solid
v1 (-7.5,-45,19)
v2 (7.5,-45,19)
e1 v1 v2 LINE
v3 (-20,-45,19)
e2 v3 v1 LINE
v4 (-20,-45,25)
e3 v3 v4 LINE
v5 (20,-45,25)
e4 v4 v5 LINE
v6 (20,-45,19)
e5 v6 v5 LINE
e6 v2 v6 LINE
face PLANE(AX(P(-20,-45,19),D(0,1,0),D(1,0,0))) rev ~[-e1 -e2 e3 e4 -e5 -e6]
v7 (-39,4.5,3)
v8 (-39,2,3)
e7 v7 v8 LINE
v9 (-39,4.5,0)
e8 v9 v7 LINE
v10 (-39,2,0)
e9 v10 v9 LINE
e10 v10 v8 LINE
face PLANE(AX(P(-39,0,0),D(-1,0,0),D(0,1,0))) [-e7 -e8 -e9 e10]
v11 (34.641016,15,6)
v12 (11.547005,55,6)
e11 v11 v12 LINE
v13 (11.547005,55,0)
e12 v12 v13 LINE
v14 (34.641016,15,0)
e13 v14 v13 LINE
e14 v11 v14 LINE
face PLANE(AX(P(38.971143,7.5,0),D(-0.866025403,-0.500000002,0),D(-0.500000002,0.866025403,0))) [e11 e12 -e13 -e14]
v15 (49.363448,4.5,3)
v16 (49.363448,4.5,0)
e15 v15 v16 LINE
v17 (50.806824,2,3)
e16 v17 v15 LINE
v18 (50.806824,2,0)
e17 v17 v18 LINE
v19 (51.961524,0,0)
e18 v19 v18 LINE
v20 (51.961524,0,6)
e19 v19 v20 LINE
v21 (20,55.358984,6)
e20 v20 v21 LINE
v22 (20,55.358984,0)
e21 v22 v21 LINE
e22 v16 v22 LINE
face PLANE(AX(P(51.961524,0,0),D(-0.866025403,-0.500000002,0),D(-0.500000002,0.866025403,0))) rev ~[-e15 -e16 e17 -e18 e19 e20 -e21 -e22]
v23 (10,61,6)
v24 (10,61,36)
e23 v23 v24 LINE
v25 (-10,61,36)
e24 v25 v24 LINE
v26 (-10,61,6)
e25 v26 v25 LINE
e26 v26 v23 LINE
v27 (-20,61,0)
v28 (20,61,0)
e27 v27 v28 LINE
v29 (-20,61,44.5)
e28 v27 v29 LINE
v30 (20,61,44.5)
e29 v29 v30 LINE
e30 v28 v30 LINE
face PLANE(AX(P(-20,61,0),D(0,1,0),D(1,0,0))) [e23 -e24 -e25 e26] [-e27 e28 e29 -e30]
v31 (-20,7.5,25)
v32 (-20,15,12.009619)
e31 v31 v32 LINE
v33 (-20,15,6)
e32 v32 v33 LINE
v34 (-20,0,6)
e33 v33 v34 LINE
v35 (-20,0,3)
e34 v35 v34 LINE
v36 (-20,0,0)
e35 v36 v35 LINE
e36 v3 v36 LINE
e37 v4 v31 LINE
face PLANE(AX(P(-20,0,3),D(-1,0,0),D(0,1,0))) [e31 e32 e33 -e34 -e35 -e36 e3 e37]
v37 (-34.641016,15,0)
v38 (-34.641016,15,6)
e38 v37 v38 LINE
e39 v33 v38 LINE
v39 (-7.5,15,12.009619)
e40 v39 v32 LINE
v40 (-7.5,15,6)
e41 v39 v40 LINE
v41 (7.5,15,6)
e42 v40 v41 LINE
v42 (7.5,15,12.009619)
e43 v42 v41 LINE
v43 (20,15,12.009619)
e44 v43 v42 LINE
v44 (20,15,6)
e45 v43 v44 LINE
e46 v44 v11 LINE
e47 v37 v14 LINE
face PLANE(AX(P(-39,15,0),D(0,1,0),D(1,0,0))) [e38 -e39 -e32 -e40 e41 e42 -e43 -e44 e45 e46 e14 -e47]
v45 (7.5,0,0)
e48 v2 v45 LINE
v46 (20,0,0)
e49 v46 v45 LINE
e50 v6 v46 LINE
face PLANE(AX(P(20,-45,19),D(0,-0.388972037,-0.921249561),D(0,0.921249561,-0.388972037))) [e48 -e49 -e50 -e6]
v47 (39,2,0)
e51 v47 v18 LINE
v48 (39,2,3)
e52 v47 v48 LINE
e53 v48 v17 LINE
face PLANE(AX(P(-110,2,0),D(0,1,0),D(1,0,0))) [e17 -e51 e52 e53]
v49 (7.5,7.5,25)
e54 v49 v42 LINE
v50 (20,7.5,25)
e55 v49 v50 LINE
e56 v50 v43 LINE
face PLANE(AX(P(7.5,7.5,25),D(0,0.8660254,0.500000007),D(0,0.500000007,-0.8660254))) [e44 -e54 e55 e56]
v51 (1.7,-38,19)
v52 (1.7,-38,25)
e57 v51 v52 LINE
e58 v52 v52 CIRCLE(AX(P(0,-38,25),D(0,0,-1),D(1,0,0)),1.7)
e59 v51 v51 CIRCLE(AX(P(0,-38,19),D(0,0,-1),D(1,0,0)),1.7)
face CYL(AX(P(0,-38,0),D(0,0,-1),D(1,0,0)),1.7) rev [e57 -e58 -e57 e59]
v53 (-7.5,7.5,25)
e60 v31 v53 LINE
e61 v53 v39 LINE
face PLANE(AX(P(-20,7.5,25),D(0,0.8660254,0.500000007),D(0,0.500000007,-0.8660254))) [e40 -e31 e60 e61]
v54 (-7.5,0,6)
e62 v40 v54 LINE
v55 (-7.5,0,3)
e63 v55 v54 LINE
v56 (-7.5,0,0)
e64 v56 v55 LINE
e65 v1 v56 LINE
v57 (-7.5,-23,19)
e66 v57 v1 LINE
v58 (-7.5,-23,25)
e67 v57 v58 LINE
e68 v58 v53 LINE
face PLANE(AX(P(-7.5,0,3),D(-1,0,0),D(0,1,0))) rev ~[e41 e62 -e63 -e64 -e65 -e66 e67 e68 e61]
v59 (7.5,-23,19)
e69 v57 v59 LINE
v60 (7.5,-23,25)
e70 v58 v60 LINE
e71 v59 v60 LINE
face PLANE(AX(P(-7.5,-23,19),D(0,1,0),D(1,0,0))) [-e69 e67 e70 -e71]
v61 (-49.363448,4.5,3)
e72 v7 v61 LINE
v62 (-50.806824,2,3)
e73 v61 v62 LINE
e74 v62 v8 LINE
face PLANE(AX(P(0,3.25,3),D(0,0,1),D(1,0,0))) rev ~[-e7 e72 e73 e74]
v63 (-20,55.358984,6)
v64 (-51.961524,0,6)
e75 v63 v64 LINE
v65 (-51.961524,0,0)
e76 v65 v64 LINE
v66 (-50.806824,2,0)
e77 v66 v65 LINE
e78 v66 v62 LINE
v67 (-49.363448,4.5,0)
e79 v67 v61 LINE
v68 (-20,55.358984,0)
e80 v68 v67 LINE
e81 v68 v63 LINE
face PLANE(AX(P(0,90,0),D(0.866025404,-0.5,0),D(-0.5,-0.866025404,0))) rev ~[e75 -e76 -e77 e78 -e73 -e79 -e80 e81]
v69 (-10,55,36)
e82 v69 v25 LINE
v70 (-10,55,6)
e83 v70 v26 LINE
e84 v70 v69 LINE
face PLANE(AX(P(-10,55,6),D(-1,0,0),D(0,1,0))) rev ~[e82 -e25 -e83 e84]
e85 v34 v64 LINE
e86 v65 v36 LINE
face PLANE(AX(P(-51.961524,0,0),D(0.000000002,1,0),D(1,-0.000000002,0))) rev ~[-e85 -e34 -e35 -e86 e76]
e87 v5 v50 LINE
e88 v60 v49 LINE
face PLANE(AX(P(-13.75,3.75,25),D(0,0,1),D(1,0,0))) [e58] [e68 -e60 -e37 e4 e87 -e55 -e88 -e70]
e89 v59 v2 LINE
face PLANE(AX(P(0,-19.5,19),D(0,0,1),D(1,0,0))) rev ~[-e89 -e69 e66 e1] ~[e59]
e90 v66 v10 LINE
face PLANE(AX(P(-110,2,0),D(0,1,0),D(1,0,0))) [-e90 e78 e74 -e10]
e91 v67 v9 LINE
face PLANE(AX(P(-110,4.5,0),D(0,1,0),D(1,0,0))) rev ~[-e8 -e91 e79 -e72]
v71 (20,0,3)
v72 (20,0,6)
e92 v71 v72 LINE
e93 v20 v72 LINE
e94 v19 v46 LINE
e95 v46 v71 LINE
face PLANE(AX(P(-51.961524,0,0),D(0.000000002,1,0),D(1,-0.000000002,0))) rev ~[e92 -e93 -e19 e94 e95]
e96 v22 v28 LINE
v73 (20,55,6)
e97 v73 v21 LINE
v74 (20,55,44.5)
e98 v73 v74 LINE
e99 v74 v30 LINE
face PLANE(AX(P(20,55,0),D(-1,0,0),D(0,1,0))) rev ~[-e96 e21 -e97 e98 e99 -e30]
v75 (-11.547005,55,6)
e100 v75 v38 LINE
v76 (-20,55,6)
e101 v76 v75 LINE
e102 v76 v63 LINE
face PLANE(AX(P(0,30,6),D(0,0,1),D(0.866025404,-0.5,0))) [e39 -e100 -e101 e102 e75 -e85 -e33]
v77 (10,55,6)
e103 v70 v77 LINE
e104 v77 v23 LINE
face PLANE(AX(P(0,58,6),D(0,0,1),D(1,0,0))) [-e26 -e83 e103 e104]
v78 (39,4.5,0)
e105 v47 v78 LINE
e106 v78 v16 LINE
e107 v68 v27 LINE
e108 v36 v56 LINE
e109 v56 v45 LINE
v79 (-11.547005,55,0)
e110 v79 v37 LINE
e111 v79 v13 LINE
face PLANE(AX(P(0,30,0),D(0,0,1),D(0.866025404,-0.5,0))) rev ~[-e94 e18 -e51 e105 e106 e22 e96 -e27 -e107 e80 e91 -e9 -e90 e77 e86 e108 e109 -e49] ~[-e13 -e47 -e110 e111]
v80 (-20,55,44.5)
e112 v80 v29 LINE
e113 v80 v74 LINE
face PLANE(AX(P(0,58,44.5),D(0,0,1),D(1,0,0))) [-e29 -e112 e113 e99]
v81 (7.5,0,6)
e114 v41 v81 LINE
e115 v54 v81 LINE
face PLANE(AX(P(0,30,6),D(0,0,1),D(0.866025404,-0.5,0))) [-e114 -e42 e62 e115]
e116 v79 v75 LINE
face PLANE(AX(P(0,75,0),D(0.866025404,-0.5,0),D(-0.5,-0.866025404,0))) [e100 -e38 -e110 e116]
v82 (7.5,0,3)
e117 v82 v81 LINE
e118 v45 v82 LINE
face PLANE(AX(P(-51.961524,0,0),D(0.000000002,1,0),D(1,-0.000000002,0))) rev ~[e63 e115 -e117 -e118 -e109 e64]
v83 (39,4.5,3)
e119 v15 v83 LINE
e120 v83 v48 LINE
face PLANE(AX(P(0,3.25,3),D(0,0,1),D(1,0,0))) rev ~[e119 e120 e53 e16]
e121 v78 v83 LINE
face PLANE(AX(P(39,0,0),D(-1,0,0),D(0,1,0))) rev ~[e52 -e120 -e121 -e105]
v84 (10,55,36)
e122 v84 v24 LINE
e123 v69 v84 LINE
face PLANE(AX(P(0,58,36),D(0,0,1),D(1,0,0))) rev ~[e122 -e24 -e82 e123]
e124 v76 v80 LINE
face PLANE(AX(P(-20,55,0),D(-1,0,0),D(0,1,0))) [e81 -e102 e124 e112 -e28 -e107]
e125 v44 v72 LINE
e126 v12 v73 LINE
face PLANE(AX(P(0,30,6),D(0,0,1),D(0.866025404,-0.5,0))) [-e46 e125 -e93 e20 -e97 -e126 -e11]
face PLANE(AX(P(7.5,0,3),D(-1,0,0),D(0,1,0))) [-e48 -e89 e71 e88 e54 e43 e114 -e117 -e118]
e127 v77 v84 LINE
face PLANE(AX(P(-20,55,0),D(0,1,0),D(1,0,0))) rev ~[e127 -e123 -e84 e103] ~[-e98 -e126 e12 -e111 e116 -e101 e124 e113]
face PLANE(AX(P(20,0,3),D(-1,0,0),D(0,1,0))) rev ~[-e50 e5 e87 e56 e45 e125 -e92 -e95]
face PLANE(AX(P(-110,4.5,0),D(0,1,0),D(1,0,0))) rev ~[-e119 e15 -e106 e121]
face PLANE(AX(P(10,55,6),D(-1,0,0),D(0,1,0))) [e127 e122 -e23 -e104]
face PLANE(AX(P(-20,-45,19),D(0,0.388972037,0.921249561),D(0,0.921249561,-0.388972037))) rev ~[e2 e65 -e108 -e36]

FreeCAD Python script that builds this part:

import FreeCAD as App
import Part
import Sketcher

V = App.Vector
Q = App.Units.Quantity


def add_polygon(sketch, points):
    """Adds a closed chain of lines whose ends are joined by coincident constraints."""
    first, n = sketch.GeometryCount, len(points)
    for a, b in zip(points, points[1:] + points[:1]):
        sketch.addGeometry(Part.LineSegment(App.Vector(*a, 0), App.Vector(*b, 0)), False)
    for i in range(n):
        sketch.addConstraint(Sketcher.Constraint("Coincident", first + i, 2, first + (i + 1) % n, 1))

doc = App.newDocument("Part")
body = doc.addObject("PartDesign::Body", "Body")

sketch1 = doc.addObject("Sketcher::SketchObject", "Sketch")
body.addObject(sketch1)
sketch1.AttachmentSupport = (doc.XY_Plane, [""])
sketch1.MapMode = "FlatFace"
add_polygon(sketch1, [(-22, 30), (-22, 15), (24, 15), (24, 30)])
sketch1.addConstraint([
    Sketcher.Constraint("Vertical", 0),
    Sketcher.Constraint("Horizontal", 1),
    Sketcher.Constraint("Vertical", 2),
    Sketcher.Constraint("Horizontal", 3),
    Sketcher.Constraint("DistanceX", 1, 1, 1, 2, Q("46 mm")),
    Sketcher.Constraint("DistanceY", 0, 2, 0, 1, Q("15 mm")),
    Sketcher.Constraint("DistanceX", 0, 2, -1, 1, Q("22 mm")),
    Sketcher.Constraint("DistanceY", -1, 1, 0, 2, Q("15 mm")),
])
pad1 = doc.addObject("PartDesign::Pad", "Pad")
body.addObject(pad1)
pad1.Profile = sketch1
pad1.Length = 16
body2 = doc.addObject("PartDesign::Body", "Body001")

sketch2 = doc.addObject("Sketcher::SketchObject", "Sketch001")
body2.addObject(sketch2)
sketch2.AttachmentSupport = (doc.getObject("XY_Plane001"), [""])
sketch2.MapMode = "FlatFace"
add_polygon(sketch2, [(-39, 15), (-39, 0), (39, 0), (39, 15)])
sketch2.addConstraint([
    Sketcher.Constraint("Vertical", 0),
    Sketcher.Constraint("Horizontal", 1),
    Sketcher.Constraint("Vertical", 2),
    Sketcher.Constraint("Horizontal", 3),
    Sketcher.Constraint("Symmetric", 0, 2, 1, 2, -1, 1),
    Sketcher.Constraint("DistanceX", 1, 1, 1, 2, Q("78 mm")),
    Sketcher.Constraint("DistanceY", 0, 2, 0, 1, Q("15 mm")),
])
pad2 = doc.addObject("PartDesign::Pad", "Pad001")
body2.addObject(pad2)
pad2.Profile = sketch2
pad2.Length = 6
body3 = doc.addObject("PartDesign::Body", "Body002")

sketch3 = doc.addObject("Sketcher::SketchObject", "Sketch002")
body3.addObject(sketch3)
sketch3.AttachmentSupport = (doc.getObject("XY_Plane002"), [""])
sketch3.MapMode = "FlatFace"
add_polygon(sketch3, [(-110, 4.5), (-110, 2), (110, 2), (110, 4.5)])
sketch3.addConstraint([
    Sketcher.Constraint("Vertical", 0),
    Sketcher.Constraint("Horizontal", 1),
    Sketcher.Constraint("Vertical", 2),
    Sketcher.Constraint("Horizontal", 3),
    Sketcher.Constraint("DistanceX", 1, 1, 1, 2, Q("220 mm")),
    Sketcher.Constraint("DistanceY", 0, 2, 0, 1, Q("2.5 mm")),
    Sketcher.Constraint("DistanceX", 0, 2, -1, 1, Q("110 mm")),
    Sketcher.Constraint("DistanceY", -1, 1, 0, 2, Q("2 mm")),
])
pad3 = doc.addObject("PartDesign::Pad", "Pad002")
body3.addObject(pad3)
pad3.Profile = sketch3
pad3.Length = 3
body4 = doc.addObject("PartDesign::Body", "Body003")

sketch4 = doc.addObject("Sketcher::SketchObject", "Sketch003")
body4.addObject(sketch4)
sketch4.AttachmentSupport = (doc.getObject("XY_Plane003"), [""])
sketch4.MapMode = "FlatFace"
add_polygon(sketch4, [(-95, 0), (95, 0), (85, 61), (-85, 61)])
sketch4.addConstraint([
    Sketcher.Constraint("Horizontal", 0),
    Sketcher.Constraint("Horizontal", 2),
    Sketcher.Constraint("Symmetric", 0, 2, 3, 2, -1, 1),
    Sketcher.Constraint("Equal", 1, 3),
    Sketcher.Constraint("DistanceX", 0, 1, 0, 2, Q("190 mm")),
    Sketcher.Constraint("DistanceX", 2, 2, 2, 1, Q("170 mm")),
    Sketcher.Constraint("DistanceY", -1, 1, 1, 2, Q("61 mm")),
])
pad4 = doc.addObject("PartDesign::Pad", "Pad003")
body4.addObject(pad4)
pad4.Profile = sketch4
pad4.Length = 10
body5 = doc.addObject("PartDesign::Body", "Body004")

sketch5 = doc.addObject("Sketcher::SketchObject", "Sketch004")
body5.addObject(sketch5)
sketch5.AttachmentSupport = (doc.getObject("XY_Plane004"), [""])
sketch5.MapMode = "FlatFace"
add_polygon(sketch5, [(-110, 98), (-110, -15), (110, -15), (110, 98)])
sketch5.addConstraint([
    Sketcher.Constraint("Vertical", 0),
    Sketcher.Constraint("Horizontal", 1),
    Sketcher.Constraint("Vertical", 2),
    Sketcher.Constraint("Horizontal", 3),
    Sketcher.Constraint("DistanceX", 1, 1, 1, 2, Q("220 mm")),
    Sketcher.Constraint("DistanceY", 0, 2, 0, 1, Q("113 mm")),
    Sketcher.Constraint("DistanceX", 0, 2, -1, 1, Q("110 mm")),
    Sketcher.Constraint("DistanceY", 0, 2, -1, 1, Q("15 mm")),
])
pad5 = doc.addObject("PartDesign::Pad", "Pad004")
body5.addObject(pad5)
pad5.Profile = sketch5
pad5.Length = 8
doc.recompute()

boolean = doc.addObject("PartDesign::Boolean", "Boolean")
body5.addObject(boolean)
boolean.Type = "Cut"
boolean.addObjects([body4])
body6 = doc.addObject("PartDesign::Body", "Body005")

sketch6 = doc.addObject("Sketcher::SketchObject", "Sketch005")
body6.addObject(sketch6)
sketch6.AttachmentSupport = (doc.getObject("XY_Plane005"), [""])
sketch6.MapMode = "FlatFace"
add_polygon(sketch6, [(-16, 61), (-16, 55), (16, 55), (16, 61)])
sketch6.addConstraint([
    Sketcher.Constraint("Vertical", 0),
    Sketcher.Constraint("Horizontal", 1),
    Sketcher.Constraint("Vertical", 2),
    Sketcher.Constraint("Horizontal", 3),
    Sketcher.Constraint("DistanceX", 1, 1, 1, 2, Q("32 mm")),
    Sketcher.Constraint("DistanceY", 0, 2, 0, 1, Q("6 mm")),
    Sketcher.Constraint("DistanceX", 0, 2, -1, 1, Q("16 mm")),
    Sketcher.Constraint("DistanceY", -1, 1, 0, 2, Q("55 mm")),
])
pad6 = doc.addObject("PartDesign::Pad", "Pad005")
body6.addObject(pad6)
pad6.Profile = sketch6
pad6.Length = 6
body7 = doc.addObject("PartDesign::Body", "Body006")

sketch7 = doc.addObject("Sketcher::SketchObject", "Sketch006")
body7.addObject(sketch7)
sketch7.AttachmentSupport = (doc.getObject("XY_Plane006"), [""])
sketch7.MapMode = "FlatFace"
add_polygon(sketch7, [(45, 0), (-22, 39), (-22, -39)])
sketch7.addConstraint([
    Sketcher.Constraint("Vertical", 1),
    Sketcher.Constraint("PointOnObject", 2, 2, -1),
    Sketcher.Constraint("Equal", 0, 2),
    Sketcher.Constraint("Angle", 0, Q("150 deg")),
    Sketcher.Constraint("DistanceX", -1, 1, 2, 2, Q("45 mm")),
    Sketcher.Constraint("DistanceX", 0, 2, -1, 1, Q("22.5 mm")),
])
pad7 = doc.addObject("PartDesign::Pad", "Pad006")
body7.addObject(pad7)
pad7.Profile = sketch7
pad7.Length = 6
body8 = doc.addObject("PartDesign::Body", "Body007")
doc.recompute()

body7.Placement = App.Placement(V(0, 23, 0), App.Rotation(V(0, 0, -1), 30))
boolean2 = doc.addObject("PartDesign::Boolean", "Boolean001")
body8.addObject(boolean2)
boolean2.Type = "Fuse"
boolean2.addObjects([body7])
body9 = doc.addObject("PartDesign::Body", "Body008")

sketch8 = doc.addObject("Sketcher::SketchObject", "Sketch007")
body9.addObject(sketch8)
sketch8.AttachmentSupport = (doc.getObject("XY_Plane008"), [""])
sketch8.MapMode = "FlatFace"
add_polygon(sketch8, [(60, 0), (-30, 52), (-30, -52)])
sketch8.addConstraint([
    Sketcher.Constraint("Vertical", 1),
    Sketcher.Constraint("PointOnObject", 2, 2, -1),
    Sketcher.Constraint("Equal", 0, 2),
    Sketcher.Constraint("Angle", 0, Q("150 deg")),
    Sketcher.Constraint("DistanceX", 0, 2, -1, 1, Q("30 mm")),
    Sketcher.Constraint("DistanceX", -1, 1, 2, 2, Q("60 mm")),
])
pad8 = doc.addObject("PartDesign::Pad", "Pad007")
body9.addObject(pad8)
pad8.Profile = sketch8
pad8.Length = 6
body10 = doc.addObject("PartDesign::Body", "Body009")
doc.recompute()

body9.Placement = App.Placement(V(0, 23, 0), App.Rotation(V(0, 0, -1), 30))
boolean3 = doc.addObject("PartDesign::Boolean", "Boolean002")
body10.addObject(boolean3)
boolean3.Type = "Fuse"
boolean3.addObjects([body9])
doc.recompute()

boolean4 = doc.addObject("PartDesign::Boolean", "Boolean003")
body10.addObject(boolean4)
boolean4.Type = "Cut"
boolean4.addObjects([body8])
body11 = doc.addObject("PartDesign::Body", "Body010")
doc.recompute()

body10.Placement = App.Placement(V(0, 7, 0), App.Rotation(V(0, 0, 1), 0))
boolean5 = doc.addObject("PartDesign::Boolean", "Boolean004")
body11.addObject(boolean5)
boolean5.Type = "Fuse"
boolean5.addObjects([body10])
doc.recompute()

boolean6 = doc.addObject("PartDesign::Boolean", "Boolean005")
body11.addObject(boolean6)
boolean6.Type = "Fuse"
boolean6.addObjects([body6])
doc.recompute()

boolean7 = doc.addObject("PartDesign::Boolean", "Boolean006")
body11.addObject(boolean7)
boolean7.Type = "Cut"
boolean7.addObjects([body5])
doc.recompute()

boolean8 = doc.addObject("PartDesign::Boolean", "Boolean007")
body11.addObject(boolean8)
boolean8.Type = "Cut"
boolean8.addObjects([body3])
body12 = doc.addObject("PartDesign::Body", "Body011")

sketch9 = doc.addObject("Sketcher::SketchObject", "Sketch008")
body12.addObject(sketch9)
sketch9.AttachmentSupport = (doc.getObject("YZ_Plane011"), [""])
sketch9.MapMode = "FlatFace"
sketch9.AttachmentOffset = App.Placement(V(0, 0, -20), App.Rotation())
add_polygon(sketch9, [(8, 0), (8, 25), (22, 0)])
sketch9.addConstraint([
    Sketcher.Constraint("Vertical", 0),
    Sketcher.Constraint("Horizontal", 2),
    Sketcher.Constraint("PointOnObject", 1, 2, -1),
    Sketcher.Constraint("DistanceY", 0, 1, 0, 2, Q("25 mm")),
    Sketcher.Constraint("Angle", 1, Q("-60 deg")),
    Sketcher.Constraint("DistanceX", -1, 1, 0, 2, Q("7.5 mm")),
])
pad9 = doc.addObject("PartDesign::Pad", "Pad008")
body12.addObject(pad9)
pad9.Profile = sketch9
pad9.Length = 12.5
body13 = doc.addObject("PartDesign::Body", "Body012")
doc.recompute()

body12.Placement = App.Placement(V(27.5, 0, 0), App.Rotation(V(0, 0, 1), 0))
boolean9 = doc.addObject("PartDesign::Boolean", "Boolean008")
body13.addObject(boolean9)
boolean9.Type = "Fuse"
boolean9.addObjects([body12])
body14 = doc.addObject("PartDesign::Body", "Body013")

sketch10 = doc.addObject("Sketcher::SketchObject", "Sketch009")
body14.addObject(sketch10)
sketch10.AttachmentSupport = (doc.getObject("YZ_Plane013"), [""])
sketch10.MapMode = "FlatFace"
sketch10.AttachmentOffset = App.Placement(V(0, 0, -20), App.Rotation())
add_polygon(sketch10, [(0, 19), (0, 0), (-45, 19)])
sketch10.addConstraint([
    Sketcher.Constraint("Vertical", 0),
    Sketcher.Constraint("Horizontal", 2),
    Sketcher.Constraint("Coincident", 0, 2, -1, 1),
    Sketcher.Constraint("DistanceX", 2, 1, 2, 2, Q("45 mm")),
    Sketcher.Constraint("DistanceY", 0, 2, 0, 1, Q("19 mm")),
])
pad10 = doc.addObject("PartDesign::Pad", "Pad009")
body14.addObject(pad10)
pad10.Profile = sketch10
pad10.Length = 12.5
pad10.Reversed = True
body15 = doc.addObject("PartDesign::Body", "Body014")
doc.recompute()

body14.Placement = App.Placement(V(40, 0, 0), App.Rotation(V(0, 0, 1), 0))
boolean10 = doc.addObject("PartDesign::Boolean", "Boolean009")
body15.addObject(boolean10)
boolean10.Type = "Fuse"
boolean10.addObjects([body14])
body16 = doc.addObject("PartDesign::Body", "Body015")

sketch11 = doc.addObject("Sketcher::SketchObject", "Sketch010")
body16.addObject(sketch11)
sketch11.AttachmentSupport = (doc.getObject("YZ_Plane015"), [""])
sketch11.MapMode = "FlatFace"
sketch11.AttachmentOffset = App.Placement(V(0, 0, -20), App.Rotation())
add_polygon(sketch11, [(0, 19), (0, 0), (-45, 19)])
sketch11.addConstraint([
    Sketcher.Constraint("Vertical", 0),
    Sketcher.Constraint("Horizontal", 2),
    Sketcher.Constraint("Coincident", 0, 2, -1, 1),
    Sketcher.Constraint("DistanceX", 2, 1, 2, 2, Q("45 mm")),
    Sketcher.Constraint("DistanceY", 0, 2, 0, 1, Q("19 mm")),
])
pad11 = doc.addObject("PartDesign::Pad", "Pad010")
body16.addObject(pad11)
pad11.Profile = sketch11
pad11.Length = 12.5
body17 = doc.addObject("PartDesign::Body", "Body016")

sketch12 = doc.addObject("Sketcher::SketchObject", "Sketch011")
body17.addObject(sketch12)
sketch12.AttachmentSupport = (doc.getObject("XY_Plane016"), [""])
sketch12.MapMode = "FlatFace"
sketch12.AttachmentOffset = App.Placement(V(0, 0, 3), App.Rotation())
add_polygon(sketch12, [(8, 8), (8, 0), (20, 0), (20, 8)])
sketch12.addConstraint([
    Sketcher.Constraint("Vertical", 0),
    Sketcher.Constraint("Horizontal", 1),
    Sketcher.Constraint("Vertical", 2),
    Sketcher.Constraint("Horizontal", 3),
    Sketcher.Constraint("PointOnObject", 0, 2, -1),
    Sketcher.Constraint("DistanceX", 1, 1, 1, 2, Q("12.5 mm")),
    Sketcher.Constraint("DistanceY", 0, 2, 0, 1, Q("7.5 mm")),
    Sketcher.Constraint("DistanceX", -1, 1, 1, 2, Q("20 mm")),
])
pad12 = doc.addObject("PartDesign::Pad", "Pad011")
body17.addObject(pad12)
pad12.Profile = sketch12
pad12.Length = 22
body18 = doc.addObject("PartDesign::Body", "Body017")

sketch13 = doc.addObject("Sketcher::SketchObject", "Sketch012")
body18.addObject(sketch13)
sketch13.AttachmentSupport = (doc.getObject("XY_Plane017"), [""])
sketch13.MapMode = "FlatFace"
sketch13.AttachmentOffset = App.Placement(V(0, 0, 3), App.Rotation())
add_polygon(sketch13, [(-20, 8), (-20, 0), (-8, 0), (-8, 8)])
sketch13.addConstraint([
    Sketcher.Constraint("Vertical", 0),
    Sketcher.Constraint("Horizontal", 1),
    Sketcher.Constraint("Vertical", 2),
    Sketcher.Constraint("Horizontal", 3),
    Sketcher.Constraint("PointOnObject", 0, 2, -1),
    Sketcher.Constraint("DistanceX", 1, 1, 1, 2, Q("12.5 mm")),
    Sketcher.Constraint("DistanceY", 0, 2, 0, 1, Q("7.5 mm")),
    Sketcher.Constraint("DistanceX", 0, 2, -1, 1, Q("20 mm")),
])
pad13 = doc.addObject("PartDesign::Pad", "Pad012")
body18.addObject(pad13)
pad13.Profile = sketch13
pad13.Length = 22
body19 = doc.addObject("PartDesign::Body", "Body018")

sketch14 = doc.addObject("Sketcher::SketchObject", "Sketch013")
body19.addObject(sketch14)
sketch14.AttachmentSupport = (doc.getObject("XY_Plane018"), [""])
sketch14.MapMode = "FlatFace"
sketch14.addGeometry(Part.Circle(V(0, 7, 0), V(0, 0, 1), 1.7), False)
sketch14.addConstraint([
    Sketcher.Constraint("PointOnObject", 0, 3, -2),
    Sketcher.Constraint("Diameter", 0, Q("3.4 mm")),
    Sketcher.Constraint("DistanceY", -1, 1, 0, 3, Q("7 mm")),
])
pad14 = doc.addObject("PartDesign::Pad", "Pad013")
body19.addObject(pad14)
pad14.Profile = sketch14
pad14.Length = 30
body20 = doc.addObject("PartDesign::Body", "Body019")

sketch15 = doc.addObject("Sketcher::SketchObject", "Sketch014")
body20.addObject(sketch15)
sketch15.AttachmentSupport = (doc.getObject("XY_Plane019"), [""])
sketch15.MapMode = "FlatFace"
sketch15.AttachmentOffset = App.Placement(V(0, 0, 20), App.Rotation())
add_polygon(sketch15, [(12, 92), (12, 22), (28, 22), (28, 92)])
sketch15.addConstraint([
    Sketcher.Constraint("Vertical", 0),
    Sketcher.Constraint("Horizontal", 1),
    Sketcher.Constraint("Vertical", 2),
    Sketcher.Constraint("Horizontal", 3),
    Sketcher.Constraint("DistanceX", 1, 1, 1, 2, Q("15 mm")),
    Sketcher.Constraint("DistanceY", 0, 2, 0, 1, Q("70 mm")),
    Sketcher.Constraint("DistanceY", -1, 1, 0, 2, Q("22 mm")),
    Sketcher.Constraint("DistanceX", -1, 1, 0, 2, Q("12.5 mm")),
])
pad15 = doc.addObject("PartDesign::Pad", "Pad014")
body20.addObject(pad15)
pad15.Profile = sketch15
pad15.Length = 6
body21 = doc.addObject("PartDesign::Body", "Body020")

sketch16 = doc.addObject("Sketcher::SketchObject", "Sketch015")
body21.addObject(sketch16)
sketch16.AttachmentSupport = (doc.getObject("XY_Plane020"), [""])
sketch16.MapMode = "FlatFace"
sketch16.AttachmentOffset = App.Placement(V(0, 0, 20), App.Rotation())
add_polygon(sketch16, [(0, 51), (0, 0), (40, 0), (40, 51)])
sketch16.addConstraint([
    Sketcher.Constraint("Vertical", 0),
    Sketcher.Constraint("Horizontal", 1),
    Sketcher.Constraint("Vertical", 2),
    Sketcher.Constraint("Horizontal", 3),
    Sketcher.Constraint("Coincident", 0, 2, -1, 1),
    Sketcher.Constraint("DistanceX", 1, 1, 1, 2, Q("40 mm")),
    Sketcher.Constraint("DistanceY", 0, 2, 0, 1, Q("51 mm")),
])
pad16 = doc.addObject("PartDesign::Pad", "Pad015")
body21.addObject(pad16)
pad16.Profile = sketch16
pad16.Length = 6
doc.recompute()

boolean11 = doc.addObject("PartDesign::Boolean", "Boolean010")
body21.addObject(boolean11)
boolean11.Type = "Cut"
boolean11.addObjects([body20])
body22 = doc.addObject("PartDesign::Body", "Body021")
doc.recompute()

body21.Placement = App.Placement(V(-20, 0, -1), App.Rotation(V(0, 0, 1), 0))
boolean12 = doc.addObject("PartDesign::Boolean", "Boolean011")
body22.addObject(boolean12)
boolean12.Type = "Fuse"
boolean12.addObjects([body21])
doc.recompute()

boolean13 = doc.addObject("PartDesign::Boolean", "Boolean012")
body22.addObject(boolean13)
boolean13.Type = "Cut"
boolean13.addObjects([body19])
body23 = doc.addObject("PartDesign::Body", "Body022")
doc.recompute()

body22.Placement = App.Placement(V(0, -45, 0), App.Rotation(V(0, 0, 1), 0))
boolean14 = doc.addObject("PartDesign::Boolean", "Boolean013")
body23.addObject(boolean14)
boolean14.Type = "Fuse"
boolean14.addObjects([body22])
doc.recompute()

boolean15 = doc.addObject("PartDesign::Boolean", "Boolean014")
body23.addObject(boolean15)
boolean15.Type = "Fuse"
boolean15.addObjects([body17])
doc.recompute()

boolean16 = doc.addObject("PartDesign::Boolean", "Boolean015")
body23.addObject(boolean16)
boolean16.Type = "Fuse"
boolean16.addObjects([body18])
body24 = doc.addObject("PartDesign::Body", "Body023")
body24.AllowCompound = True

sketch17 = doc.addObject("Sketcher::SketchObject", "Sketch016")
body24.addObject(sketch17)
sketch17.AttachmentSupport = (doc.getObject("YZ_Plane023"), [""])
sketch17.MapMode = "FlatFace"
sketch17.AttachmentOffset = App.Placement(V(0, 0, -20), App.Rotation())
add_polygon(sketch17, [(8, 0), (8, 25), (22, 0)])
sketch17.addConstraint([
    Sketcher.Constraint("Vertical", 0),
    Sketcher.Constraint("Horizontal", 2),
    Sketcher.Constraint("PointOnObject", 1, 2, -1),
    Sketcher.Constraint("DistanceY", 0, 1, 0, 2, Q("25 mm")),
    Sketcher.Constraint("Angle", 1, Q("-60 deg")),
    Sketcher.Constraint("DistanceX", -1, 1, 0, 2, Q("7.5 mm")),
])
pad17 = doc.addObject("PartDesign::Pad", "Pad016")
body24.addObject(pad17)
pad17.Profile = sketch17
pad17.Length = 12.5
doc.recompute()

boolean17 = doc.addObject("PartDesign::Boolean", "Boolean016")
body24.addObject(boolean17)
boolean17.Type = "Fuse"
boolean17.addObjects([body13])
doc.recompute()

boolean18 = doc.addObject("PartDesign::Boolean", "Boolean017")
body24.addObject(boolean18)
boolean18.Type = "Fuse"
boolean18.addObjects([body15])
doc.recompute()

boolean19 = doc.addObject("PartDesign::Boolean", "Boolean018")
body24.addObject(boolean19)
boolean19.Type = "Fuse"
boolean19.addObjects([body16])
doc.recompute()

boolean20 = doc.addObject("PartDesign::Boolean", "Boolean019")
body24.addObject(boolean20)
boolean20.Type = "Fuse"
boolean20.addObjects([body23])
body25 = doc.addObject("PartDesign::Body", "Body024")

sketch18 = doc.addObject("Sketcher::SketchObject", "Sketch017")
body25.addObject(sketch18)
sketch18.AttachmentSupport = (doc.getObject("XY_Plane024"), [""])
sketch18.MapMode = "FlatFace"
sketch18.AttachmentOffset = App.Placement(V(0, 0, 3), App.Rotation())
add_polygon(sketch18, [(8, 8), (8, 0), (20, 0), (20, 8)])
sketch18.addConstraint([
    Sketcher.Constraint("Vertical", 0),
    Sketcher.Constraint("Horizontal", 1),
    Sketcher.Constraint("Vertical", 2),
    Sketcher.Constraint("Horizontal", 3),
    Sketcher.Constraint("PointOnObject", 0, 2, -1),
    Sketcher.Constraint("DistanceX", 1, 1, 1, 2, Q("12.5 mm")),
    Sketcher.Constraint("DistanceY", 0, 2, 0, 1, Q("7.5 mm")),
    Sketcher.Constraint("DistanceX", -1, 1, 1, 2, Q("20 mm")),
])
pad18 = doc.addObject("PartDesign::Pad", "Pad017")
body25.addObject(pad18)
pad18.Profile = sketch18
pad18.Length = 22
body26 = doc.addObject("PartDesign::Body", "Body025")

sketch19 = doc.addObject("Sketcher::SketchObject", "Sketch018")
body26.addObject(sketch19)
sketch19.AttachmentSupport = (doc.getObject("XY_Plane025"), [""])
sketch19.MapMode = "FlatFace"
sketch19.AttachmentOffset = App.Placement(V(0, 0, 3), App.Rotation())
add_polygon(sketch19, [(-20, 8), (-20, 0), (-8, 0), (-8, 8)])
sketch19.addConstraint([
    Sketcher.Constraint("Vertical", 0),
    Sketcher.Constraint("Horizontal", 1),
    Sketcher.Constraint("Vertical", 2),
    Sketcher.Constraint("Horizontal", 3),
    Sketcher.Constraint("PointOnObject", 0, 2, -1),
    Sketcher.Constraint("DistanceX", 1, 1, 1, 2, Q("12.5 mm")),
    Sketcher.Constraint("DistanceY", 0, 2, 0, 1, Q("7.5 mm")),
    Sketcher.Constraint("DistanceX", 0, 2, -1, 1, Q("20 mm")),
])
pad19 = doc.addObject("PartDesign::Pad", "Pad018")
body26.addObject(pad19)
pad19.Profile = sketch19
pad19.Length = 22
body27 = doc.addObject("PartDesign::Body", "Body026")

sketch20 = doc.addObject("Sketcher::SketchObject", "Sketch019")
body27.addObject(sketch20)
sketch20.AttachmentSupport = (doc.getObject("XY_Plane026"), [""])
sketch20.MapMode = "FlatFace"
sketch20.addGeometry(Part.Circle(V(0, 7, 0), V(0, 0, 1), 1.7), False)
sketch20.addConstraint([
    Sketcher.Constraint("PointOnObject", 0, 3, -2),
    Sketcher.Constraint("Diameter", 0, Q("3.4 mm")),
    Sketcher.Constraint("DistanceY", -1, 1, 0, 3, Q("7 mm")),
])
pad20 = doc.addObject("PartDesign::Pad", "Pad019")
body27.addObject(pad20)
pad20.Profile = sketch20
pad20.Length = 30
body28 = doc.addObject("PartDesign::Body", "Body027")

sketch21 = doc.addObject("Sketcher::SketchObject", "Sketch020")
body28.addObject(sketch21)
sketch21.AttachmentSupport = (doc.getObject("XY_Plane027"), [""])
sketch21.MapMode = "FlatFace"
sketch21.AttachmentOffset = App.Placement(V(0, 0, 20), App.Rotation())
add_polygon(sketch21, [(12, 92), (12, 22), (28, 22), (28, 92)])
sketch21.addConstraint([
    Sketcher.Constraint("Vertical", 0),
    Sketcher.Constraint("Horizontal", 1),
    Sketcher.Constraint("Vertical", 2),
    Sketcher.Constraint("Horizontal", 3),
    Sketcher.Constraint("DistanceX", 1, 1, 1, 2, Q("15 mm")),
    Sketcher.Constraint("DistanceY", 0, 2, 0, 1, Q("70 mm")),
    Sketcher.Constraint("DistanceY", -1, 1, 0, 2, Q("22 mm")),
    Sketcher.Constraint("DistanceX", -1, 1, 0, 2, Q("12.5 mm")),
])
pad21 = doc.addObject("PartDesign::Pad", "Pad020")
body28.addObject(pad21)
pad21.Profile = sketch21
pad21.Length = 6
body29 = doc.addObject("PartDesign::Body", "Body028")

sketch22 = doc.addObject("Sketcher::SketchObject", "Sketch021")
body29.addObject(sketch22)
sketch22.AttachmentSupport = (doc.getObject("XY_Plane028"), [""])
sketch22.MapMode = "FlatFace"
sketch22.AttachmentOffset = App.Placement(V(0, 0, 20), App.Rotation())
add_polygon(sketch22, [(0, 51), (0, 0), (40, 0), (40, 51)])
sketch22.addConstraint([
    Sketcher.Constraint("Vertical", 0),
    Sketcher.Constraint("Horizontal", 1),
    Sketcher.Constraint("Vertical", 2),
    Sketcher.Constraint("Horizontal", 3),
    Sketcher.Constraint("Coincident", 0, 2, -1, 1),
    Sketcher.Constraint("DistanceX", 1, 1, 1, 2, Q("40 mm")),
    Sketcher.Constraint("DistanceY", 0, 2, 0, 1, Q("51 mm")),
])
pad22 = doc.addObject("PartDesign::Pad", "Pad021")
body29.addObject(pad22)
pad22.Profile = sketch22
pad22.Length = 6
doc.recompute()

boolean21 = doc.addObject("PartDesign::Boolean", "Boolean020")
body29.addObject(boolean21)
boolean21.Type = "Cut"
boolean21.addObjects([body28])
body30 = doc.addObject("PartDesign::Body", "Body029")
doc.recompute()

body29.Placement = App.Placement(V(-20, 0, -1), App.Rotation(V(0, 0, 1), 0))
boolean22 = doc.addObject("PartDesign::Boolean", "Boolean021")
body30.addObject(boolean22)
boolean22.Type = "Fuse"
boolean22.addObjects([body29])
doc.recompute()

boolean23 = doc.addObject("PartDesign::Boolean", "Boolean022")
body30.addObject(boolean23)
boolean23.Type = "Cut"
boolean23.addObjects([body27])
body31 = doc.addObject("PartDesign::Body", "Body030")
doc.recompute()

body30.Placement = App.Placement(V(0, -45, 0), App.Rotation(V(0, 0, 1), 0))
boolean24 = doc.addObject("PartDesign::Boolean", "Boolean023")
body31.addObject(boolean24)
boolean24.Type = "Fuse"
boolean24.addObjects([body30])
doc.recompute()

boolean25 = doc.addObject("PartDesign::Boolean", "Boolean024")
body31.addObject(boolean25)
boolean25.Type = "Fuse"
boolean25.addObjects([body25])
doc.recompute()

boolean26 = doc.addObject("PartDesign::Boolean", "Boolean025")
body31.addObject(boolean26)
boolean26.Type = "Fuse"
boolean26.addObjects([body26])
doc.recompute()

boolean27 = doc.addObject("PartDesign::Boolean", "Boolean026")
body31.addObject(boolean27)
boolean27.Type = "Fuse"
boolean27.addObjects([body24])
body32 = doc.addObject("PartDesign::Body", "Body031")

sketch23 = doc.addObject("Sketcher::SketchObject", "Sketch022")
body32.addObject(sketch23)
sketch23.AttachmentSupport = (doc.getObject("XY_Plane031"), [""])
sketch23.MapMode = "FlatFace"
sketch23.AttachmentOffset = App.Placement(V(0, 0, 6), App.Rotation())
add_polygon(sketch23, [(-10, 61), (-10, 55), (10, 55), (10, 61)])
sketch23.addConstraint([
    Sketcher.Constraint("Vertical", 0),
    Sketcher.Constraint("Horizontal", 1),
    Sketcher.Constraint("Vertical", 2),
    Sketcher.Constraint("Horizontal", 3),
    Sketcher.Constraint("DistanceX", 1, 1, 1, 2, Q("20 mm")),
    Sketcher.Constraint("DistanceY", 0, 2, 0, 1, Q("6 mm")),
    Sketcher.Constraint("DistanceX", 0, 2, -1, 1, Q("10 mm")),
    Sketcher.Constraint("DistanceY", -1, 1, 0, 2, Q("55 mm")),
])
pad23 = doc.addObject("PartDesign::Pad", "Pad022")
body32.addObject(pad23)
pad23.Profile = sketch23
pad23.Length = 30
body33 = doc.addObject("PartDesign::Body", "Body032")

sketch24 = doc.addObject("Sketcher::SketchObject", "Sketch023")
body33.addObject(sketch24)
sketch24.AttachmentSupport = (doc.getObject("XY_Plane032"), [""])
sketch24.MapMode = "FlatFace"
add_polygon(sketch24, [(-20, 61), (-20, 55), (20, 55), (20, 61)])
sketch24.addConstraint([
    Sketcher.Constraint("Vertical", 0),
    Sketcher.Constraint("Horizontal", 1),
    Sketcher.Constraint("Vertical", 2),
    Sketcher.Constraint("Horizontal", 3),
    Sketcher.Constraint("DistanceX", 1, 1, 1, 2, Q("40 mm")),
    Sketcher.Constraint("DistanceY", 0, 2, 0, 1, Q("6 mm")),
    Sketcher.Constraint("DistanceX", 0, 2, -1, 1, Q("20 mm")),
    Sketcher.Constraint("DistanceY", -1, 1, 0, 2, Q("55 mm")),
])
pad24 = doc.addObject("PartDesign::Pad", "Pad023")
body33.addObject(pad24)
pad24.Profile = sketch24
pad24.Length = 44.5
doc.recompute()

boolean28 = doc.addObject("PartDesign::Boolean", "Boolean027")
body33.addObject(boolean28)
boolean28.Type = "Cut"
boolean28.addObjects([body32])
doc.recompute()

boolean29 = doc.addObject("PartDesign::Boolean", "Boolean028")
body33.addObject(boolean29)
boolean29.Type = "Fuse"
boolean29.addObjects([body11])
doc.recompute()

boolean30 = doc.addObject("PartDesign::Boolean", "Boolean029")
body33.addObject(boolean30)
boolean30.Type = "Fuse"
boolean30.addObjects([body31])
doc.recompute()

boolean31 = doc.addObject("PartDesign::Boolean", "Boolean030")
body33.addObject(boolean31)
boolean31.Type = "Fuse"
boolean31.addObjects([body2])
doc.recompute()

boolean32 = doc.addObject("PartDesign::Boolean", "Boolean031")
body33.addObject(boolean32)
boolean32.Type = "Cut"
boolean32.addObjects([body])

doc.recompute()
